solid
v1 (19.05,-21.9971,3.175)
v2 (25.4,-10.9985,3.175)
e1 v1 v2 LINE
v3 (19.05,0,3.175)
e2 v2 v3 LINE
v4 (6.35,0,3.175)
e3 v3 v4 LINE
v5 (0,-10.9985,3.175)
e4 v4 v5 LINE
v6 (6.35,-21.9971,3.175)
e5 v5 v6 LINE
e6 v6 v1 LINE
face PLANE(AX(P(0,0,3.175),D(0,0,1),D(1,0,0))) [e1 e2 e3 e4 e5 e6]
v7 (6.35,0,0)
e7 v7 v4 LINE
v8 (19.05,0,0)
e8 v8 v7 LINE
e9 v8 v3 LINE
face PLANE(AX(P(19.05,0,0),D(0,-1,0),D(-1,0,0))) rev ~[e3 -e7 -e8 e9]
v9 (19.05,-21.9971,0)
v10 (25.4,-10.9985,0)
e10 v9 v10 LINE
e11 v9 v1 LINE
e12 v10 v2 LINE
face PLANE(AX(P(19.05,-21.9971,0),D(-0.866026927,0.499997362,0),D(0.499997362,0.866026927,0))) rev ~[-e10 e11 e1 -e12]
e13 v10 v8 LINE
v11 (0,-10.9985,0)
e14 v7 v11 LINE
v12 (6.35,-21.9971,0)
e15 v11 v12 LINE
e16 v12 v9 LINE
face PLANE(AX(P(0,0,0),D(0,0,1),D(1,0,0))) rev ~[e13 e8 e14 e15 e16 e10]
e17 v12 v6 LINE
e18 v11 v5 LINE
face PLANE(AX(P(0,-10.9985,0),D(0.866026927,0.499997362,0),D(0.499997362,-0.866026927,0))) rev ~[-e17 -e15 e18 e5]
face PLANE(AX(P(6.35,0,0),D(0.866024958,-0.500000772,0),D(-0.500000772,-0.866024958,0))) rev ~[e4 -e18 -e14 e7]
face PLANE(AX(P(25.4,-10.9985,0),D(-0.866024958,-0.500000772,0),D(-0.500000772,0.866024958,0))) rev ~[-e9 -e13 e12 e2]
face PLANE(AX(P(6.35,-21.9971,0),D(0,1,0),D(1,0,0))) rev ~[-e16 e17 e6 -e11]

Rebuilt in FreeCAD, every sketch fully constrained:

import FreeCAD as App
import Part
import Sketcher

V = App.Vector
Q = App.Units.Quantity


def add_polygon(sketch, points):
    """Adds a closed chain of lines whose ends are joined by coincident constraints."""
    first, n = sketch.GeometryCount, len(points)
    for a, b in zip(points, points[1:] + points[:1]):
        sketch.addGeometry(Part.LineSegment(App.Vector(*a, 0), App.Vector(*b, 0)), False)
    for i in range(n):
        sketch.addConstraint(Sketcher.Constraint("Coincident", first + i, 2, first + (i + 1) % n, 1))

doc = App.newDocument("Part")
body = doc.addObject("PartDesign::Body", "Body")

# Sketch on XY plane
sketch1 = doc.addObject("Sketcher::SketchObject", "Sketch")
body.addObject(sketch1)
sketch1.AttachmentSupport = (doc.XY_Plane, [""])
sketch1.MapMode = "FlatFace"
add_polygon(sketch1, [(19, 0), (6, 0), (0, -11), (6, -22), (19, -22), (25, -11)])  # lines 0-5
sketch1.addConstraint([
    Sketcher.Constraint("Horizontal", 0),
    Sketcher.Constraint("Horizontal", 3),
    Sketcher.Constraint("PointOnObject", 0, 2, -1),
    Sketcher.Constraint("PointOnObject", 1, 2, -2),
    Sketcher.Constraint("Parallel", 1, 4),
    Sketcher.Constraint("Parallel", 2, 5),
    Sketcher.Constraint("Horizontal", 1, 2, 4, 2),
    Sketcher.Constraint("Vertical", 0, 2, 2, 2),
    Sketcher.Constraint("Vertical", 3, 2, 5, 2),
    Sketcher.Constraint("DistanceX", 0, 2, 0, 1, Q("0.5 in")),
    Sketcher.Constraint("DistanceX", -1, 1, 4, 2, Q("1 in")),
    Sketcher.Constraint("Angle", 1, Q("-120 deg")),
])
pad1 = doc.addObject("PartDesign::Pad", "Pad")
body.addObject(pad1)
pad1.Profile = sketch1
pad1.Length = Q("0.125 in")

doc.recompute()
